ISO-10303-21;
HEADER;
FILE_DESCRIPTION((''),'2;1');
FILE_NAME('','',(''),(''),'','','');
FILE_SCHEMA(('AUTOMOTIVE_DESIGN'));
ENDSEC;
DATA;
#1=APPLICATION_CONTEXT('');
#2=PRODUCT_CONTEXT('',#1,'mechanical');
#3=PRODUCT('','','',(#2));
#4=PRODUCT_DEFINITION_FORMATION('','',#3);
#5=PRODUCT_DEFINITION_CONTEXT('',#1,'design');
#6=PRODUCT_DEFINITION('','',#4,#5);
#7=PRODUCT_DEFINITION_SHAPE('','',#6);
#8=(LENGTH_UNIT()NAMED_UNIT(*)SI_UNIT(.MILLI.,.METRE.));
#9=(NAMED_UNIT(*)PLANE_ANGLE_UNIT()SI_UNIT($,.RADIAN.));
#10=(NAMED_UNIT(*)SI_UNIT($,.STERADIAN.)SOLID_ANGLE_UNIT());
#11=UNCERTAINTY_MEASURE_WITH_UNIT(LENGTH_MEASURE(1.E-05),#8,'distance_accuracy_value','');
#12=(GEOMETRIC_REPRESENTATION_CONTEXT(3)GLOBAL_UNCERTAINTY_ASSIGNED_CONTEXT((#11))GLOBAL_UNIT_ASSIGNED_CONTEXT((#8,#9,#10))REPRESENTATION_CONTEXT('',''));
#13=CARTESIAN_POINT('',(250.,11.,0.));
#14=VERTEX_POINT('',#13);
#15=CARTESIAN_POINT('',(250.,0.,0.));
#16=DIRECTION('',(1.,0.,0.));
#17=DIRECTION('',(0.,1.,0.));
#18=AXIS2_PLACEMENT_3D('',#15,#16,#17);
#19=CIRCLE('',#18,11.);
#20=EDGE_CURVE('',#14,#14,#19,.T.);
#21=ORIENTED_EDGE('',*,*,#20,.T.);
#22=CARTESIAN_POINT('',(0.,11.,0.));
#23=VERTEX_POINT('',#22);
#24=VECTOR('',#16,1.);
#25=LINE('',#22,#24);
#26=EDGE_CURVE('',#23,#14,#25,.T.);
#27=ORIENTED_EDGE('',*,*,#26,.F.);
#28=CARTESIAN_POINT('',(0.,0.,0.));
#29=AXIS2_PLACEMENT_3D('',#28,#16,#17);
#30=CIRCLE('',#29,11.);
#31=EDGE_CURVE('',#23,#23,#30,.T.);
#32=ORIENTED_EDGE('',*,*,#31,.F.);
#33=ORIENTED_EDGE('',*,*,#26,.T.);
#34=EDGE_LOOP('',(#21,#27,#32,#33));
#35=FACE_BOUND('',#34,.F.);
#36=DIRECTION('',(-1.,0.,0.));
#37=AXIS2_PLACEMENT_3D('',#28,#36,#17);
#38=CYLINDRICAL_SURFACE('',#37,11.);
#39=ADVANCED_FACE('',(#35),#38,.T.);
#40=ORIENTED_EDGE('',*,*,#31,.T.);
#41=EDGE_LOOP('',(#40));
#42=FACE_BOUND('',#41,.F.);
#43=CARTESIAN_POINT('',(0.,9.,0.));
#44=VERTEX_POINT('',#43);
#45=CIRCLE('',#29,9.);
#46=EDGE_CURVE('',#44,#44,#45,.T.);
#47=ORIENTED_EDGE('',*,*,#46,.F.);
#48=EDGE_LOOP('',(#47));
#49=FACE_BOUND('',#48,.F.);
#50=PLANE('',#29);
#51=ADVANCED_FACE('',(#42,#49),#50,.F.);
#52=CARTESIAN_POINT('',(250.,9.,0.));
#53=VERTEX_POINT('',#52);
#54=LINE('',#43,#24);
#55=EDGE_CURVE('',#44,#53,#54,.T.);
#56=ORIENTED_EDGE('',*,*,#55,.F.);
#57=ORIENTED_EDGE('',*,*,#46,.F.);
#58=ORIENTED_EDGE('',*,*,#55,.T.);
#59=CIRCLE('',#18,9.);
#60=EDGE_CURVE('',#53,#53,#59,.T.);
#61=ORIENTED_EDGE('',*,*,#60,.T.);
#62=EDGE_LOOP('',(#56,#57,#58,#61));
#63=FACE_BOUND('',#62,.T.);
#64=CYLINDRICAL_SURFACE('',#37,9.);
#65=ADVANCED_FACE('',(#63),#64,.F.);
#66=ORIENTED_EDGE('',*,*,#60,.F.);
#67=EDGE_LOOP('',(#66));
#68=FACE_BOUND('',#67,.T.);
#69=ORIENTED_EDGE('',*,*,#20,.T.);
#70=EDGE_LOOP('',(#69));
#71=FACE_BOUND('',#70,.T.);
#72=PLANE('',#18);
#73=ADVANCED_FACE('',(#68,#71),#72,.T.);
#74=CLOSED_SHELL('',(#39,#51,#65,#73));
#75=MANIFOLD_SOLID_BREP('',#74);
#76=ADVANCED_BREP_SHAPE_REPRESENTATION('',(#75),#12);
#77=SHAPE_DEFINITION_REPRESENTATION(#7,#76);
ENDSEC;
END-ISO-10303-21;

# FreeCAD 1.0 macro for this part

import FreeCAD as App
import Part
import Sketcher
from FreeCAD import Vector
Q = App.Units.Quantity

doc = App.newDocument("Part")
params = doc.addObject("Spreadsheet::Sheet", "Params")
for row, (alias, value) in enumerate([
    ("sketch1_diameter", "22 mm"),
    ("sketch1_diameter2", "18 mm"),
    ("pad1_length", "250 mm"),
], start=1):
    params.set(f"A{row}", alias)
    params.set(f"B{row}", "=" + value)
    params.setAlias(f"B{row}", alias)

body = doc.addObject("PartDesign::Body", "Body")

# Sketch on YZ plane
sketch1 = doc.addObject("Sketcher::SketchObject", "Sketch")
body.addObject(sketch1)
sketch1.AttachmentSupport = (doc.YZ_Plane, [""])
sketch1.MapMode = "FlatFace"
sketch1.addGeometry(Part.Circle(Vector(0, 0, 0), Vector(0, 0, 1), 11), False)
sketch1.addGeometry(Part.Circle(Vector(0, 0, 0), Vector(0, 0, 1), 9), False)
sketch1.addConstraint(Sketcher.Constraint("Coincident", 0, 3, -1, 1))
sketch1.addConstraint(Sketcher.Constraint("Coincident", 1, 3, -1, 1))
sketch1.addConstraint(Sketcher.Constraint("Diameter", 0, Q("22 mm")))
sketch1.addConstraint(Sketcher.Constraint("Diameter", 1, Q("18 mm")))
sketch1.setExpression("Constraints[2]", "Params.sketch1_diameter")
sketch1.setExpression("Constraints[3]", "Params.sketch1_diameter2")
pad1 = doc.addObject("PartDesign::Pad", "Pad")
body.addObject(pad1)
pad1.Profile = sketch1
pad1.setExpression("Length", "Params.pad1_length")

doc.recompute()
